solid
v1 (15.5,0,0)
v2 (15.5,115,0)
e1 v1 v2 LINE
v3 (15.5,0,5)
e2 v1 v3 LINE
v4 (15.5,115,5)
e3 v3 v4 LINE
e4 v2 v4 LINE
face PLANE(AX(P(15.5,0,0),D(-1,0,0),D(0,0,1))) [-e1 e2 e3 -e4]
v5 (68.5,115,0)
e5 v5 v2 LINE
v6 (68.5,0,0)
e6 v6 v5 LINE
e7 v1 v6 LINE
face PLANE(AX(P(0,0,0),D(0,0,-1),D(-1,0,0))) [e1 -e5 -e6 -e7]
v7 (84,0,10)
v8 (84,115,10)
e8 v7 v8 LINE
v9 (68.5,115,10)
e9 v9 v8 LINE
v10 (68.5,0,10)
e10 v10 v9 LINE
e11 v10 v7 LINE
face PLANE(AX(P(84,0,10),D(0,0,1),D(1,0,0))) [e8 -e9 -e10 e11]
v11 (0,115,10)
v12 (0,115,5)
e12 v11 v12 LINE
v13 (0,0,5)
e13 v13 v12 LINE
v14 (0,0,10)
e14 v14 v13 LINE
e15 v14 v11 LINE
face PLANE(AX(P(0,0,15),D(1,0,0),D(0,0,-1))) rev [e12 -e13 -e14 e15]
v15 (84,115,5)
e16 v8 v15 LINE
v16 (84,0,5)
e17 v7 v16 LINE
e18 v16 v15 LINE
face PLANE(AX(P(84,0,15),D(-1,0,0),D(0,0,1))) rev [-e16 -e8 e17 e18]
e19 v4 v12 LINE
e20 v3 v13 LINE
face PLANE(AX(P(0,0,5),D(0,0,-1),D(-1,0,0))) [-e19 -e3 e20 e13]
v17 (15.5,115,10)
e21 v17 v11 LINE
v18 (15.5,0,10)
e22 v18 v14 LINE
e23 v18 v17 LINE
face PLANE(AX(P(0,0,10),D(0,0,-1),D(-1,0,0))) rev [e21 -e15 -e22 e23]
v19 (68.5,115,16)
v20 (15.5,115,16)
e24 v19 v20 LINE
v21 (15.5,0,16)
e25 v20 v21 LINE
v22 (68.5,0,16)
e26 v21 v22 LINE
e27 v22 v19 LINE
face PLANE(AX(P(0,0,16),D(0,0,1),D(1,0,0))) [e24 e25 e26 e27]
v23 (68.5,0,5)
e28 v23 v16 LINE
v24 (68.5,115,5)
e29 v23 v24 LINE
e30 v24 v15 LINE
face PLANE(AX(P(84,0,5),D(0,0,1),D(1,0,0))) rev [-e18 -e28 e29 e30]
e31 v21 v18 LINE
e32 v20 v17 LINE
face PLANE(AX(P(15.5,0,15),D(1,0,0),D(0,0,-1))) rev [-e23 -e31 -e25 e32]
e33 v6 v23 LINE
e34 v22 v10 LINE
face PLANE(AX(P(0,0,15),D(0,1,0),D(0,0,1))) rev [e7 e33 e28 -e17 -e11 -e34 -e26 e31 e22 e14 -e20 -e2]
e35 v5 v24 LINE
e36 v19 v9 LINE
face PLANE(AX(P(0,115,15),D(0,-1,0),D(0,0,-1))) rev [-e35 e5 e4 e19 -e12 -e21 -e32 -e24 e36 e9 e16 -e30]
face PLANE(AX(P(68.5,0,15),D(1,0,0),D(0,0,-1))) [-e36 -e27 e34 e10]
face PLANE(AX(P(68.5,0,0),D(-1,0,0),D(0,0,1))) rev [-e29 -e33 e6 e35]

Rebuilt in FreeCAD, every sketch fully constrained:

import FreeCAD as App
import Part
import Sketcher


def add_polygon(sketch, points):
    """Adds a closed chain of lines whose ends are joined by coincident constraints."""
    first, n = sketch.GeometryCount, len(points)
    for a, b in zip(points, points[1:] + points[:1]):
        sketch.addGeometry(Part.LineSegment(App.Vector(*a, 0), App.Vector(*b, 0)), False)
    for i in range(n):
        sketch.addConstraint(Sketcher.Constraint("Coincident", first + i, 2, first + (i + 1) % n, 1))

doc = App.newDocument("Part")
body = doc.addObject("PartDesign::Body", "Body")

# Sketch on XY plane
sketch1 = body.newObject("Sketcher::SketchObject", "Sketch")
sketch1.AttachmentSupport = (doc.getObject("XY_Plane"), [""])
sketch1.MapMode = "FlatFace"
add_polygon(sketch1, [(0, 115), (0, 0), (84, 0), (84, 115)])  # lines 0-3
sketch1.addConstraint([
    Sketcher.Constraint("Vertical", 0),
    Sketcher.Constraint("Horizontal", 1),
    Sketcher.Constraint("Vertical", 2),
    Sketcher.Constraint("Horizontal", 3),
    Sketcher.Constraint("Coincident", 0, 2, -1, 1),
    Sketcher.Constraint("DistanceX", 1, 1, 1, 2, 84.0),
    Sketcher.Constraint("DistanceY", 0, 2, 0, 1, 115.0),
])
pad1 = body.newObject("PartDesign::Pad", "Pad")
pad1.Profile = sketch1
pad1.Length = 15

# Sketch on XZ plane
sketch2 = body.newObject("Sketcher::SketchObject", "Sketch001")
sketch2.AttachmentSupport = (doc.getObject("XZ_Plane"), [""])
sketch2.MapMode = "FlatFace"
sketch2.AttachmentOffset = App.Placement(App.Vector(0, 0, -115), App.Rotation())
add_polygon(sketch2, [(0, 10), (0, 15), (16, 15), (16, 10)])  # lines 0-3
sketch2.addConstraint([
    Sketcher.Constraint("Vertical", 0),
    Sketcher.Constraint("Horizontal", 1),
    Sketcher.Constraint("Vertical", 2),
    Sketcher.Constraint("Horizontal", 3),
    Sketcher.Constraint("PointOnObject", 0, 2, -2),
    Sketcher.Constraint("DistanceY", 0, 1, 0, 2, 5.0),
    Sketcher.Constraint("DistanceX", 1, 1, 1, 2, 15.5),
    Sketcher.Constraint("DistanceY", -1, 1, 0, 2, 15.0),
])
pocket1 = body.newObject("PartDesign::Pocket", "Pocket")
pocket1.Profile = sketch2
pocket1.Type = "ThroughAll"
pocket1.Reversed = True
doc.recompute()

datumplane = body.newObject("PartDesign::Plane", "DatumPlane")
datumplane.AttachmentSupport = (doc.getObject("XY_Plane"), [""])
datumplane.MapMode = "FlatFace"
datumplane.AttachmentOffset = App.Placement(App.Vector(0, 0, 7.5), App.Rotation())
mirrored = body.newObject("PartDesign::Mirrored", "Mirrored")
mirrored.Originals = [pocket1]
mirrored.MirrorPlane = (datumplane, [""])
body.Tip = mirrored
doc.recompute()

datumplane2 = body.newObject("PartDesign::Plane", "DatumPlane001")
datumplane2.AttachmentSupport = (doc.getObject("YZ_Plane"), [""])
datumplane2.MapMode = "FlatFace"
datumplane2.AttachmentOffset = App.Placement(App.Vector(0, 0, 42), App.Rotation())
mirrored2 = body.newObject("PartDesign::Mirrored", "Mirrored001")
mirrored2.Originals = [pocket1]
mirrored2.MirrorPlane = (datumplane2, [""])
body.Tip = mirrored2

# Sketch on XZ plane
sketch3 = body.newObject("Sketcher::SketchObject", "Sketch002")
sketch3.AttachmentSupport = (doc.getObject("XZ_Plane"), [""])
sketch3.MapMode = "FlatFace"
sketch3.AttachmentOffset = App.Placement(App.Vector(0, 0, -115), App.Rotation())
add_polygon(sketch3, [(84, 5), (84, 0), (68, 0), (68, 5)])  # lines 0-3
sketch3.addConstraint([
    Sketcher.Constraint("Vertical", 0),
    Sketcher.Constraint("Horizontal", 1),
    Sketcher.Constraint("Vertical", 2),
    Sketcher.Constraint("Horizontal", 3),
    Sketcher.Constraint("PointOnObject", 0, 2, -1),
    Sketcher.Constraint("DistanceY", 0, 2, 0, 1, 5.0),
    Sketcher.Constraint("DistanceX", 1, 2, 1, 1, 15.5),
    Sketcher.Constraint("DistanceX", -1, 1, 0, 2, 84.0),
])
pocket2 = body.newObject("PartDesign::Pocket", "Pocket001")
pocket2.Profile = sketch3
pocket2.Type = "ThroughAll"
pocket2.Reversed = True

# Sketch on XY plane
sketch4 = body.newObject("Sketcher::SketchObject", "Sketch003")
sketch4.AttachmentSupport = (doc.getObject("XY_Plane"), [""])
sketch4.MapMode = "FlatFace"
sketch4.AttachmentOffset = App.Placement(App.Vector(0, 0, 15), App.Rotation())
add_polygon(sketch4, [(16, 115), (16, 0), (68, 0), (68, 115)])  # lines 0-3
sketch4.addConstraint([
    Sketcher.Constraint("Vertical", 0),
    Sketcher.Constraint("Horizontal", 1),
    Sketcher.Constraint("Vertical", 2),
    Sketcher.Constraint("Horizontal", 3),
    Sketcher.Constraint("PointOnObject", 0, 2, -1),
    Sketcher.Constraint("DistanceX", 1, 1, 1, 2, 53.0),
    Sketcher.Constraint("DistanceY", 0, 2, 0, 1, 115.0),
    Sketcher.Constraint("DistanceX", -1, 1, 0, 2, 15.5),
])
pad2 = body.newObject("PartDesign::Pad", "Pad001")
pad2.Profile = sketch4
pad2.Length = 1

doc.recompute()
